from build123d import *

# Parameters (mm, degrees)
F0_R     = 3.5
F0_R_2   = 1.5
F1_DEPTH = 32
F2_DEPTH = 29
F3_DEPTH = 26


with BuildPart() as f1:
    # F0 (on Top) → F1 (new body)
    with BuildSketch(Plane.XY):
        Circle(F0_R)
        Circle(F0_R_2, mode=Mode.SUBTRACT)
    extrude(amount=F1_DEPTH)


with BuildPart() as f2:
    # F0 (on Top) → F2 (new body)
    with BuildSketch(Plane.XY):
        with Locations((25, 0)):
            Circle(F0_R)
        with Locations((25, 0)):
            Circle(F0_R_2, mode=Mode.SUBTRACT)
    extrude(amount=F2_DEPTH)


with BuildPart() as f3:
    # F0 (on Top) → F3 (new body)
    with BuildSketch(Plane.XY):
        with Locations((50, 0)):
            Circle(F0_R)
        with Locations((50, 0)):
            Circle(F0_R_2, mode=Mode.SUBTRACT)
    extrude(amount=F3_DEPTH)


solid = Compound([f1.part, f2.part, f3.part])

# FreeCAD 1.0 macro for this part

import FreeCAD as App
import Part
import Sketcher

V = App.Vector
Q = App.Units.Quantity

doc = App.newDocument("Part")
params = doc.addObject("Spreadsheet::Sheet", "Params")
for row, (alias, value) in enumerate([
    ("sketch1_diameter", "7 mm"),
    ("sketch1_diameter2", "3 mm"),
    ("pad1_length", "32 mm"),
    ("sketch2_diameter", "7 mm"),
    ("sketch2_diameter2", "3 mm"),
    ("pad2_length", "29 mm"),
    ("sketch3_diameter", "7 mm"),
    ("sketch3_diameter2", "3 mm"),
    ("pad3_length", "26 mm"),
], start=1):
    params.set(f"A{row}", alias)
    params.set(f"B{row}", "=" + value)
    params.setAlias(f"B{row}", alias)

body = doc.addObject("PartDesign::Body", "Body")

# Sketch on XY plane
sketch1 = body.newObject("Sketcher::SketchObject", "Sketch")
sketch1.AttachmentSupport = (doc.getObject("XY_Plane"), [""])
sketch1.MapMode = "FlatFace"
sketch1.addGeometry(Part.Circle(V(0, 0, 0), V(0, 0, 1), 3.5), False)
sketch1.addGeometry(Part.Circle(V(0, 0, 0), V(0, 0, 1), 1.5), False)
sketch1.addConstraint(Sketcher.Constraint("Coincident", 0, 3, -1, 1))
sketch1.addConstraint(Sketcher.Constraint("Coincident", 1, 3, -1, 1))
sketch1.addConstraint(Sketcher.Constraint("Diameter", 0, Q("7 mm")))
sketch1.addConstraint(Sketcher.Constraint("Diameter", 1, Q("3 mm")))
sketch1.setExpression("Constraints[2]", "Params.sketch1_diameter")
sketch1.setExpression("Constraints[3]", "Params.sketch1_diameter2")
pad1 = body.newObject("PartDesign::Pad", "Pad")
pad1.Profile = sketch1
pad1.setExpression("Length", "Params.pad1_length")
body2 = doc.addObject("PartDesign::Body", "Body001")

# Sketch on XY plane
sketch2 = body2.newObject("Sketcher::SketchObject", "Sketch001")
sketch2.AttachmentSupport = (doc.getObject("XY_Plane001"), [""])
sketch2.MapMode = "FlatFace"
sketch2.addGeometry(Part.Circle(V(25, 0, 0), V(0, 0, 1), 3.5), False)
sketch2.addGeometry(Part.Circle(V(25, 0, 0), V(0, 0, 1), 1.5), False)
sketch2.addConstraint(Sketcher.Constraint("Coincident", 1, 3, 0, 3))
sketch2.addConstraint(Sketcher.Constraint("PointOnObject", 0, 3, -1))
sketch2.addConstraint(Sketcher.Constraint("Diameter", 0, Q("7 mm")))
sketch2.addConstraint(Sketcher.Constraint("Diameter", 1, Q("3 mm")))
sketch2.addConstraint(Sketcher.Constraint("DistanceX", -1, 1, 0, 3, Q("25 mm")))
sketch2.setExpression("Constraints[2]", "Params.sketch2_diameter")
sketch2.setExpression("Constraints[3]", "Params.sketch2_diameter2")
pad2 = body2.newObject("PartDesign::Pad", "Pad001")
pad2.Profile = sketch2
pad2.setExpression("Length", "Params.pad2_length")
body3 = doc.addObject("PartDesign::Body", "Body002")

# Sketch on XY plane
sketch3 = body3.newObject("Sketcher::SketchObject", "Sketch002")
sketch3.AttachmentSupport = (doc.getObject("XY_Plane002"), [""])
sketch3.MapMode = "FlatFace"
sketch3.addGeometry(Part.Circle(V(50, 0, 0), V(0, 0, 1), 3.5), False)
sketch3.addGeometry(Part.Circle(V(50, 0, 0), V(0, 0, 1), 1.5), False)
sketch3.addConstraint(Sketcher.Constraint("Coincident", 1, 3, 0, 3))
sketch3.addConstraint(Sketcher.Constraint("PointOnObject", 0, 3, -1))
sketch3.addConstraint(Sketcher.Constraint("Diameter", 0, Q("7 mm")))
sketch3.addConstraint(Sketcher.Constraint("Diameter", 1, Q("3 mm")))
sketch3.addConstraint(Sketcher.Constraint("DistanceX", -1, 1, 0, 3, Q("50 mm")))
sketch3.setExpression("Constraints[2]", "Params.sketch3_diameter")
sketch3.setExpression("Constraints[3]", "Params.sketch3_diameter2")
pad3 = body3.newObject("PartDesign::Pad", "Pad002")
pad3.Profile = sketch3
pad3.setExpression("Length", "Params.pad3_length")

doc.recompute()
